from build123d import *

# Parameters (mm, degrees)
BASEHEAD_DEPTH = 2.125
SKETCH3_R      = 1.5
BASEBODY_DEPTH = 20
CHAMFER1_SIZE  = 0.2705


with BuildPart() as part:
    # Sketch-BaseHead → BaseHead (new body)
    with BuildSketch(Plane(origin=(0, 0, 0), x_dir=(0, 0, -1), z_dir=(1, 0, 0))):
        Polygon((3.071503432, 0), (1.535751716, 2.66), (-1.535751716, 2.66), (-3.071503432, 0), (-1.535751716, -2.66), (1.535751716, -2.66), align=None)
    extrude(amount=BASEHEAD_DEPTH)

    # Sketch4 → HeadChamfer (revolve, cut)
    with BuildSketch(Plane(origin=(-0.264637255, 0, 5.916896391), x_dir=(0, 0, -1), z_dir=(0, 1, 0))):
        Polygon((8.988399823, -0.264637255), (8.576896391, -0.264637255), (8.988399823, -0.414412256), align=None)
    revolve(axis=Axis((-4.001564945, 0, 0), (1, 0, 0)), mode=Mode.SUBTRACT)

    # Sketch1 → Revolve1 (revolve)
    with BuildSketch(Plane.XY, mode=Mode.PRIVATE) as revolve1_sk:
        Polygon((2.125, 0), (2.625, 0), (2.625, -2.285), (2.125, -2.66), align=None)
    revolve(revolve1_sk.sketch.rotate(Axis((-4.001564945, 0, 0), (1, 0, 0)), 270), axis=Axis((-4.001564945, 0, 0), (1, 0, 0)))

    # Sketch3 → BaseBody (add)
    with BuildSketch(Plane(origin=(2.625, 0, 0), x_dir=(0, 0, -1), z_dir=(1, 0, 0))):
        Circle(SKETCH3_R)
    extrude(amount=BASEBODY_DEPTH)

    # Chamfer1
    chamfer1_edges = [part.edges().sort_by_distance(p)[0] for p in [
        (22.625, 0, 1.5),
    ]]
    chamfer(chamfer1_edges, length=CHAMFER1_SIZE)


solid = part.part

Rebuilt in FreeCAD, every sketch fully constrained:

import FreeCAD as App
import Part
import Sketcher

V = App.Vector
Q = App.Units.Quantity


def edges_at(feature, points):
    """Names of the edges that pass closest to the given points."""
    edges = feature.Shape.Edges
    near = lambda p: min(range(len(edges)), key=lambda i: edges[i].distToShape(Part.Vertex(*p))[0])
    return sorted({f"Edge{near(p) + 1}" for p in points})

doc = App.newDocument("Part")
body = doc.addObject("PartDesign::Body", "Body")

sketch1 = body.newObject("Sketcher::SketchObject", "Sketch")
sketch1.AttachmentSupport = (doc.getObject("YZ_Plane"), [""])
sketch1.MapMode = "FlatFace"
sketch1.addGeometry(Part.LineSegment(V(0, -3.071503, 0), V(2.66, -1.535752, 0)), False)
sketch1.addGeometry(Part.LineSegment(V(2.66, -1.535752, 0), V(2.66, 1.535752, 0)), False)
sketch1.addGeometry(Part.LineSegment(V(2.66, 1.535752, 0), V(0, 3.071503, 0)), False)
sketch1.addGeometry(Part.LineSegment(V(0, 3.071503, 0), V(-2.66, 1.535752, 0)), False)
sketch1.addGeometry(Part.LineSegment(V(-2.66, 1.535752, 0), V(-2.66, -1.535752, 0)), False)
sketch1.addGeometry(Part.LineSegment(V(-2.66, -1.535752, 0), V(0, -3.071503, 0)), False)
sketch1.addConstraint(Sketcher.Constraint("Coincident", 0, 2, 1, 1))
sketch1.addConstraint(Sketcher.Constraint("Coincident", 1, 2, 2, 1))
sketch1.addConstraint(Sketcher.Constraint("Coincident", 2, 2, 3, 1))
sketch1.addConstraint(Sketcher.Constraint("Coincident", 3, 2, 4, 1))
sketch1.addConstraint(Sketcher.Constraint("Coincident", 4, 2, 5, 1))
sketch1.addConstraint(Sketcher.Constraint("Coincident", 5, 2, 0, 1))
sketch1.addConstraint(Sketcher.Constraint("Vertical", 1))
sketch1.addConstraint(Sketcher.Constraint("Vertical", 4))
sketch1.addConstraint(Sketcher.Constraint("Symmetric", 0, 2, 3, 2, -1, 1))
sketch1.addConstraint(Sketcher.Constraint("Symmetric", 2, 2, 5, 2, -1, 1))
sketch1.addConstraint(Sketcher.Constraint("PointOnObject", 2, 2, -2))
sketch1.addConstraint(Sketcher.Constraint("Parallel", 2, 5))
sketch1.addConstraint(Sketcher.Constraint("Horizontal", 1, 2, 3, 2))
sketch1.addConstraint(Sketcher.Constraint("Angle", 0, Q("30 deg")))
sketch1.addConstraint(Sketcher.Constraint("DistanceX", -1, 1, 0, 2, 2.66))
sketch1.addConstraint(Sketcher.Constraint("DistanceY", 1, 1, 1, 2, 3.071503))
pad1 = body.newObject("PartDesign::Pad", "Pad")
pad1.Profile = sketch1
pad1.Length = 2.125

sketch2 = body.newObject("Sketcher::SketchObject", "Sketch001")
sketch2.AttachmentSupport = (doc.getObject("XZ_Plane"), [""])
sketch2.MapMode = "FlatFace"
sketch2.addGeometry(Part.LineSegment(V(0, -3.071503, 0), V(0, -2.66, 0)), False)
sketch2.addGeometry(Part.LineSegment(V(0, -2.66, 0), V(0.149775, -3.071503, 0)), False)
sketch2.addGeometry(Part.LineSegment(V(0.149775, -3.071503, 0), V(0, -3.071503, 0)), False)
sketch2.addConstraint(Sketcher.Constraint("Coincident", 0, 2, 1, 1))
sketch2.addConstraint(Sketcher.Constraint("Coincident", 1, 2, 2, 1))
sketch2.addConstraint(Sketcher.Constraint("Coincident", 2, 2, 0, 1))
sketch2.addConstraint(Sketcher.Constraint("Vertical", 0))
sketch2.addConstraint(Sketcher.Constraint("Horizontal", 2))
sketch2.addConstraint(Sketcher.Constraint("PointOnObject", 0, 2, -2))
sketch2.addConstraint(Sketcher.Constraint("Angle", 1, Q("-70 deg")))
sketch2.addConstraint(Sketcher.Constraint("DistanceY", 0, 2, -1, 1, 2.66))
sketch2.addConstraint(Sketcher.Constraint("DistanceX", 2, 2, 2, 1, 0.149775))
groove = body.newObject("PartDesign::Groove", "Groove")
groove.Profile = sketch2
groove.ReferenceAxis = (sketch2, ["H_Axis"])
groove.Angle = 360

sketch3 = body.newObject("Sketcher::SketchObject", "Sketch002")
sketch3.AttachmentSupport = (doc.getObject("XY_Plane"), [""])
sketch3.MapMode = "FlatFace"
sketch3.addGeometry(Part.LineSegment(V(2.625, 0, 0), V(2.125, 0, 0)), False)
sketch3.addGeometry(Part.LineSegment(V(2.125, 0, 0), V(2.125, -2.66, 0)), False)
sketch3.addGeometry(Part.LineSegment(V(2.125, -2.66, 0), V(2.625, -2.285, 0)), False)
sketch3.addGeometry(Part.LineSegment(V(2.625, -2.285, 0), V(2.625, 0, 0)), False)
sketch3.addConstraint(Sketcher.Constraint("Coincident", 0, 2, 1, 1))
sketch3.addConstraint(Sketcher.Constraint("Coincident", 1, 2, 2, 1))
sketch3.addConstraint(Sketcher.Constraint("Coincident", 2, 2, 3, 1))
sketch3.addConstraint(Sketcher.Constraint("Coincident", 3, 2, 0, 1))
sketch3.addConstraint(Sketcher.Constraint("Horizontal", 0))
sketch3.addConstraint(Sketcher.Constraint("Vertical", 1))
sketch3.addConstraint(Sketcher.Constraint("Vertical", 3))
sketch3.addConstraint(Sketcher.Constraint("PointOnObject", 0, 2, -1))
sketch3.addConstraint(Sketcher.Constraint("DistanceX", 0, 2, 0, 1, 0.5))
sketch3.addConstraint(Sketcher.Constraint("DistanceY", 1, 2, 1, 1, 2.66))
sketch3.addConstraint(Sketcher.Constraint("DistanceY", 3, 1, 3, 2, 2.285))
sketch3.addConstraint(Sketcher.Constraint("DistanceX", -1, 1, 0, 2, 2.125))
revolution = body.newObject("PartDesign::Revolution", "Revolution")
revolution.Profile = sketch3
revolution.ReferenceAxis = (sketch3, ["H_Axis"])
revolution.Angle = 360

sketch4 = body.newObject("Sketcher::SketchObject", "Sketch003")
sketch4.AttachmentSupport = (doc.getObject("YZ_Plane"), [""])
sketch4.MapMode = "FlatFace"
sketch4.AttachmentOffset = App.Placement(V(0, 0, 2.625), App.Rotation())
sketch4.addGeometry(Part.Circle(V(0, 0, 0), V(0, 0, 1), 1.5), False)
sketch4.addConstraint(Sketcher.Constraint("Coincident", 0, 3, -1, 1))
sketch4.addConstraint(Sketcher.Constraint("Diameter", 0, 3.0))
pad2 = body.newObject("PartDesign::Pad", "Pad001")
pad2.Profile = sketch4
pad2.Length = 20
doc.recompute()

chamfer = body.newObject("PartDesign::Chamfer", "Chamfer")
chamfer.Base = (pad2, edges_at(pad2, [(22.625, 0, 1.5)]))
chamfer.Size = 0.2705

doc.recompute()
